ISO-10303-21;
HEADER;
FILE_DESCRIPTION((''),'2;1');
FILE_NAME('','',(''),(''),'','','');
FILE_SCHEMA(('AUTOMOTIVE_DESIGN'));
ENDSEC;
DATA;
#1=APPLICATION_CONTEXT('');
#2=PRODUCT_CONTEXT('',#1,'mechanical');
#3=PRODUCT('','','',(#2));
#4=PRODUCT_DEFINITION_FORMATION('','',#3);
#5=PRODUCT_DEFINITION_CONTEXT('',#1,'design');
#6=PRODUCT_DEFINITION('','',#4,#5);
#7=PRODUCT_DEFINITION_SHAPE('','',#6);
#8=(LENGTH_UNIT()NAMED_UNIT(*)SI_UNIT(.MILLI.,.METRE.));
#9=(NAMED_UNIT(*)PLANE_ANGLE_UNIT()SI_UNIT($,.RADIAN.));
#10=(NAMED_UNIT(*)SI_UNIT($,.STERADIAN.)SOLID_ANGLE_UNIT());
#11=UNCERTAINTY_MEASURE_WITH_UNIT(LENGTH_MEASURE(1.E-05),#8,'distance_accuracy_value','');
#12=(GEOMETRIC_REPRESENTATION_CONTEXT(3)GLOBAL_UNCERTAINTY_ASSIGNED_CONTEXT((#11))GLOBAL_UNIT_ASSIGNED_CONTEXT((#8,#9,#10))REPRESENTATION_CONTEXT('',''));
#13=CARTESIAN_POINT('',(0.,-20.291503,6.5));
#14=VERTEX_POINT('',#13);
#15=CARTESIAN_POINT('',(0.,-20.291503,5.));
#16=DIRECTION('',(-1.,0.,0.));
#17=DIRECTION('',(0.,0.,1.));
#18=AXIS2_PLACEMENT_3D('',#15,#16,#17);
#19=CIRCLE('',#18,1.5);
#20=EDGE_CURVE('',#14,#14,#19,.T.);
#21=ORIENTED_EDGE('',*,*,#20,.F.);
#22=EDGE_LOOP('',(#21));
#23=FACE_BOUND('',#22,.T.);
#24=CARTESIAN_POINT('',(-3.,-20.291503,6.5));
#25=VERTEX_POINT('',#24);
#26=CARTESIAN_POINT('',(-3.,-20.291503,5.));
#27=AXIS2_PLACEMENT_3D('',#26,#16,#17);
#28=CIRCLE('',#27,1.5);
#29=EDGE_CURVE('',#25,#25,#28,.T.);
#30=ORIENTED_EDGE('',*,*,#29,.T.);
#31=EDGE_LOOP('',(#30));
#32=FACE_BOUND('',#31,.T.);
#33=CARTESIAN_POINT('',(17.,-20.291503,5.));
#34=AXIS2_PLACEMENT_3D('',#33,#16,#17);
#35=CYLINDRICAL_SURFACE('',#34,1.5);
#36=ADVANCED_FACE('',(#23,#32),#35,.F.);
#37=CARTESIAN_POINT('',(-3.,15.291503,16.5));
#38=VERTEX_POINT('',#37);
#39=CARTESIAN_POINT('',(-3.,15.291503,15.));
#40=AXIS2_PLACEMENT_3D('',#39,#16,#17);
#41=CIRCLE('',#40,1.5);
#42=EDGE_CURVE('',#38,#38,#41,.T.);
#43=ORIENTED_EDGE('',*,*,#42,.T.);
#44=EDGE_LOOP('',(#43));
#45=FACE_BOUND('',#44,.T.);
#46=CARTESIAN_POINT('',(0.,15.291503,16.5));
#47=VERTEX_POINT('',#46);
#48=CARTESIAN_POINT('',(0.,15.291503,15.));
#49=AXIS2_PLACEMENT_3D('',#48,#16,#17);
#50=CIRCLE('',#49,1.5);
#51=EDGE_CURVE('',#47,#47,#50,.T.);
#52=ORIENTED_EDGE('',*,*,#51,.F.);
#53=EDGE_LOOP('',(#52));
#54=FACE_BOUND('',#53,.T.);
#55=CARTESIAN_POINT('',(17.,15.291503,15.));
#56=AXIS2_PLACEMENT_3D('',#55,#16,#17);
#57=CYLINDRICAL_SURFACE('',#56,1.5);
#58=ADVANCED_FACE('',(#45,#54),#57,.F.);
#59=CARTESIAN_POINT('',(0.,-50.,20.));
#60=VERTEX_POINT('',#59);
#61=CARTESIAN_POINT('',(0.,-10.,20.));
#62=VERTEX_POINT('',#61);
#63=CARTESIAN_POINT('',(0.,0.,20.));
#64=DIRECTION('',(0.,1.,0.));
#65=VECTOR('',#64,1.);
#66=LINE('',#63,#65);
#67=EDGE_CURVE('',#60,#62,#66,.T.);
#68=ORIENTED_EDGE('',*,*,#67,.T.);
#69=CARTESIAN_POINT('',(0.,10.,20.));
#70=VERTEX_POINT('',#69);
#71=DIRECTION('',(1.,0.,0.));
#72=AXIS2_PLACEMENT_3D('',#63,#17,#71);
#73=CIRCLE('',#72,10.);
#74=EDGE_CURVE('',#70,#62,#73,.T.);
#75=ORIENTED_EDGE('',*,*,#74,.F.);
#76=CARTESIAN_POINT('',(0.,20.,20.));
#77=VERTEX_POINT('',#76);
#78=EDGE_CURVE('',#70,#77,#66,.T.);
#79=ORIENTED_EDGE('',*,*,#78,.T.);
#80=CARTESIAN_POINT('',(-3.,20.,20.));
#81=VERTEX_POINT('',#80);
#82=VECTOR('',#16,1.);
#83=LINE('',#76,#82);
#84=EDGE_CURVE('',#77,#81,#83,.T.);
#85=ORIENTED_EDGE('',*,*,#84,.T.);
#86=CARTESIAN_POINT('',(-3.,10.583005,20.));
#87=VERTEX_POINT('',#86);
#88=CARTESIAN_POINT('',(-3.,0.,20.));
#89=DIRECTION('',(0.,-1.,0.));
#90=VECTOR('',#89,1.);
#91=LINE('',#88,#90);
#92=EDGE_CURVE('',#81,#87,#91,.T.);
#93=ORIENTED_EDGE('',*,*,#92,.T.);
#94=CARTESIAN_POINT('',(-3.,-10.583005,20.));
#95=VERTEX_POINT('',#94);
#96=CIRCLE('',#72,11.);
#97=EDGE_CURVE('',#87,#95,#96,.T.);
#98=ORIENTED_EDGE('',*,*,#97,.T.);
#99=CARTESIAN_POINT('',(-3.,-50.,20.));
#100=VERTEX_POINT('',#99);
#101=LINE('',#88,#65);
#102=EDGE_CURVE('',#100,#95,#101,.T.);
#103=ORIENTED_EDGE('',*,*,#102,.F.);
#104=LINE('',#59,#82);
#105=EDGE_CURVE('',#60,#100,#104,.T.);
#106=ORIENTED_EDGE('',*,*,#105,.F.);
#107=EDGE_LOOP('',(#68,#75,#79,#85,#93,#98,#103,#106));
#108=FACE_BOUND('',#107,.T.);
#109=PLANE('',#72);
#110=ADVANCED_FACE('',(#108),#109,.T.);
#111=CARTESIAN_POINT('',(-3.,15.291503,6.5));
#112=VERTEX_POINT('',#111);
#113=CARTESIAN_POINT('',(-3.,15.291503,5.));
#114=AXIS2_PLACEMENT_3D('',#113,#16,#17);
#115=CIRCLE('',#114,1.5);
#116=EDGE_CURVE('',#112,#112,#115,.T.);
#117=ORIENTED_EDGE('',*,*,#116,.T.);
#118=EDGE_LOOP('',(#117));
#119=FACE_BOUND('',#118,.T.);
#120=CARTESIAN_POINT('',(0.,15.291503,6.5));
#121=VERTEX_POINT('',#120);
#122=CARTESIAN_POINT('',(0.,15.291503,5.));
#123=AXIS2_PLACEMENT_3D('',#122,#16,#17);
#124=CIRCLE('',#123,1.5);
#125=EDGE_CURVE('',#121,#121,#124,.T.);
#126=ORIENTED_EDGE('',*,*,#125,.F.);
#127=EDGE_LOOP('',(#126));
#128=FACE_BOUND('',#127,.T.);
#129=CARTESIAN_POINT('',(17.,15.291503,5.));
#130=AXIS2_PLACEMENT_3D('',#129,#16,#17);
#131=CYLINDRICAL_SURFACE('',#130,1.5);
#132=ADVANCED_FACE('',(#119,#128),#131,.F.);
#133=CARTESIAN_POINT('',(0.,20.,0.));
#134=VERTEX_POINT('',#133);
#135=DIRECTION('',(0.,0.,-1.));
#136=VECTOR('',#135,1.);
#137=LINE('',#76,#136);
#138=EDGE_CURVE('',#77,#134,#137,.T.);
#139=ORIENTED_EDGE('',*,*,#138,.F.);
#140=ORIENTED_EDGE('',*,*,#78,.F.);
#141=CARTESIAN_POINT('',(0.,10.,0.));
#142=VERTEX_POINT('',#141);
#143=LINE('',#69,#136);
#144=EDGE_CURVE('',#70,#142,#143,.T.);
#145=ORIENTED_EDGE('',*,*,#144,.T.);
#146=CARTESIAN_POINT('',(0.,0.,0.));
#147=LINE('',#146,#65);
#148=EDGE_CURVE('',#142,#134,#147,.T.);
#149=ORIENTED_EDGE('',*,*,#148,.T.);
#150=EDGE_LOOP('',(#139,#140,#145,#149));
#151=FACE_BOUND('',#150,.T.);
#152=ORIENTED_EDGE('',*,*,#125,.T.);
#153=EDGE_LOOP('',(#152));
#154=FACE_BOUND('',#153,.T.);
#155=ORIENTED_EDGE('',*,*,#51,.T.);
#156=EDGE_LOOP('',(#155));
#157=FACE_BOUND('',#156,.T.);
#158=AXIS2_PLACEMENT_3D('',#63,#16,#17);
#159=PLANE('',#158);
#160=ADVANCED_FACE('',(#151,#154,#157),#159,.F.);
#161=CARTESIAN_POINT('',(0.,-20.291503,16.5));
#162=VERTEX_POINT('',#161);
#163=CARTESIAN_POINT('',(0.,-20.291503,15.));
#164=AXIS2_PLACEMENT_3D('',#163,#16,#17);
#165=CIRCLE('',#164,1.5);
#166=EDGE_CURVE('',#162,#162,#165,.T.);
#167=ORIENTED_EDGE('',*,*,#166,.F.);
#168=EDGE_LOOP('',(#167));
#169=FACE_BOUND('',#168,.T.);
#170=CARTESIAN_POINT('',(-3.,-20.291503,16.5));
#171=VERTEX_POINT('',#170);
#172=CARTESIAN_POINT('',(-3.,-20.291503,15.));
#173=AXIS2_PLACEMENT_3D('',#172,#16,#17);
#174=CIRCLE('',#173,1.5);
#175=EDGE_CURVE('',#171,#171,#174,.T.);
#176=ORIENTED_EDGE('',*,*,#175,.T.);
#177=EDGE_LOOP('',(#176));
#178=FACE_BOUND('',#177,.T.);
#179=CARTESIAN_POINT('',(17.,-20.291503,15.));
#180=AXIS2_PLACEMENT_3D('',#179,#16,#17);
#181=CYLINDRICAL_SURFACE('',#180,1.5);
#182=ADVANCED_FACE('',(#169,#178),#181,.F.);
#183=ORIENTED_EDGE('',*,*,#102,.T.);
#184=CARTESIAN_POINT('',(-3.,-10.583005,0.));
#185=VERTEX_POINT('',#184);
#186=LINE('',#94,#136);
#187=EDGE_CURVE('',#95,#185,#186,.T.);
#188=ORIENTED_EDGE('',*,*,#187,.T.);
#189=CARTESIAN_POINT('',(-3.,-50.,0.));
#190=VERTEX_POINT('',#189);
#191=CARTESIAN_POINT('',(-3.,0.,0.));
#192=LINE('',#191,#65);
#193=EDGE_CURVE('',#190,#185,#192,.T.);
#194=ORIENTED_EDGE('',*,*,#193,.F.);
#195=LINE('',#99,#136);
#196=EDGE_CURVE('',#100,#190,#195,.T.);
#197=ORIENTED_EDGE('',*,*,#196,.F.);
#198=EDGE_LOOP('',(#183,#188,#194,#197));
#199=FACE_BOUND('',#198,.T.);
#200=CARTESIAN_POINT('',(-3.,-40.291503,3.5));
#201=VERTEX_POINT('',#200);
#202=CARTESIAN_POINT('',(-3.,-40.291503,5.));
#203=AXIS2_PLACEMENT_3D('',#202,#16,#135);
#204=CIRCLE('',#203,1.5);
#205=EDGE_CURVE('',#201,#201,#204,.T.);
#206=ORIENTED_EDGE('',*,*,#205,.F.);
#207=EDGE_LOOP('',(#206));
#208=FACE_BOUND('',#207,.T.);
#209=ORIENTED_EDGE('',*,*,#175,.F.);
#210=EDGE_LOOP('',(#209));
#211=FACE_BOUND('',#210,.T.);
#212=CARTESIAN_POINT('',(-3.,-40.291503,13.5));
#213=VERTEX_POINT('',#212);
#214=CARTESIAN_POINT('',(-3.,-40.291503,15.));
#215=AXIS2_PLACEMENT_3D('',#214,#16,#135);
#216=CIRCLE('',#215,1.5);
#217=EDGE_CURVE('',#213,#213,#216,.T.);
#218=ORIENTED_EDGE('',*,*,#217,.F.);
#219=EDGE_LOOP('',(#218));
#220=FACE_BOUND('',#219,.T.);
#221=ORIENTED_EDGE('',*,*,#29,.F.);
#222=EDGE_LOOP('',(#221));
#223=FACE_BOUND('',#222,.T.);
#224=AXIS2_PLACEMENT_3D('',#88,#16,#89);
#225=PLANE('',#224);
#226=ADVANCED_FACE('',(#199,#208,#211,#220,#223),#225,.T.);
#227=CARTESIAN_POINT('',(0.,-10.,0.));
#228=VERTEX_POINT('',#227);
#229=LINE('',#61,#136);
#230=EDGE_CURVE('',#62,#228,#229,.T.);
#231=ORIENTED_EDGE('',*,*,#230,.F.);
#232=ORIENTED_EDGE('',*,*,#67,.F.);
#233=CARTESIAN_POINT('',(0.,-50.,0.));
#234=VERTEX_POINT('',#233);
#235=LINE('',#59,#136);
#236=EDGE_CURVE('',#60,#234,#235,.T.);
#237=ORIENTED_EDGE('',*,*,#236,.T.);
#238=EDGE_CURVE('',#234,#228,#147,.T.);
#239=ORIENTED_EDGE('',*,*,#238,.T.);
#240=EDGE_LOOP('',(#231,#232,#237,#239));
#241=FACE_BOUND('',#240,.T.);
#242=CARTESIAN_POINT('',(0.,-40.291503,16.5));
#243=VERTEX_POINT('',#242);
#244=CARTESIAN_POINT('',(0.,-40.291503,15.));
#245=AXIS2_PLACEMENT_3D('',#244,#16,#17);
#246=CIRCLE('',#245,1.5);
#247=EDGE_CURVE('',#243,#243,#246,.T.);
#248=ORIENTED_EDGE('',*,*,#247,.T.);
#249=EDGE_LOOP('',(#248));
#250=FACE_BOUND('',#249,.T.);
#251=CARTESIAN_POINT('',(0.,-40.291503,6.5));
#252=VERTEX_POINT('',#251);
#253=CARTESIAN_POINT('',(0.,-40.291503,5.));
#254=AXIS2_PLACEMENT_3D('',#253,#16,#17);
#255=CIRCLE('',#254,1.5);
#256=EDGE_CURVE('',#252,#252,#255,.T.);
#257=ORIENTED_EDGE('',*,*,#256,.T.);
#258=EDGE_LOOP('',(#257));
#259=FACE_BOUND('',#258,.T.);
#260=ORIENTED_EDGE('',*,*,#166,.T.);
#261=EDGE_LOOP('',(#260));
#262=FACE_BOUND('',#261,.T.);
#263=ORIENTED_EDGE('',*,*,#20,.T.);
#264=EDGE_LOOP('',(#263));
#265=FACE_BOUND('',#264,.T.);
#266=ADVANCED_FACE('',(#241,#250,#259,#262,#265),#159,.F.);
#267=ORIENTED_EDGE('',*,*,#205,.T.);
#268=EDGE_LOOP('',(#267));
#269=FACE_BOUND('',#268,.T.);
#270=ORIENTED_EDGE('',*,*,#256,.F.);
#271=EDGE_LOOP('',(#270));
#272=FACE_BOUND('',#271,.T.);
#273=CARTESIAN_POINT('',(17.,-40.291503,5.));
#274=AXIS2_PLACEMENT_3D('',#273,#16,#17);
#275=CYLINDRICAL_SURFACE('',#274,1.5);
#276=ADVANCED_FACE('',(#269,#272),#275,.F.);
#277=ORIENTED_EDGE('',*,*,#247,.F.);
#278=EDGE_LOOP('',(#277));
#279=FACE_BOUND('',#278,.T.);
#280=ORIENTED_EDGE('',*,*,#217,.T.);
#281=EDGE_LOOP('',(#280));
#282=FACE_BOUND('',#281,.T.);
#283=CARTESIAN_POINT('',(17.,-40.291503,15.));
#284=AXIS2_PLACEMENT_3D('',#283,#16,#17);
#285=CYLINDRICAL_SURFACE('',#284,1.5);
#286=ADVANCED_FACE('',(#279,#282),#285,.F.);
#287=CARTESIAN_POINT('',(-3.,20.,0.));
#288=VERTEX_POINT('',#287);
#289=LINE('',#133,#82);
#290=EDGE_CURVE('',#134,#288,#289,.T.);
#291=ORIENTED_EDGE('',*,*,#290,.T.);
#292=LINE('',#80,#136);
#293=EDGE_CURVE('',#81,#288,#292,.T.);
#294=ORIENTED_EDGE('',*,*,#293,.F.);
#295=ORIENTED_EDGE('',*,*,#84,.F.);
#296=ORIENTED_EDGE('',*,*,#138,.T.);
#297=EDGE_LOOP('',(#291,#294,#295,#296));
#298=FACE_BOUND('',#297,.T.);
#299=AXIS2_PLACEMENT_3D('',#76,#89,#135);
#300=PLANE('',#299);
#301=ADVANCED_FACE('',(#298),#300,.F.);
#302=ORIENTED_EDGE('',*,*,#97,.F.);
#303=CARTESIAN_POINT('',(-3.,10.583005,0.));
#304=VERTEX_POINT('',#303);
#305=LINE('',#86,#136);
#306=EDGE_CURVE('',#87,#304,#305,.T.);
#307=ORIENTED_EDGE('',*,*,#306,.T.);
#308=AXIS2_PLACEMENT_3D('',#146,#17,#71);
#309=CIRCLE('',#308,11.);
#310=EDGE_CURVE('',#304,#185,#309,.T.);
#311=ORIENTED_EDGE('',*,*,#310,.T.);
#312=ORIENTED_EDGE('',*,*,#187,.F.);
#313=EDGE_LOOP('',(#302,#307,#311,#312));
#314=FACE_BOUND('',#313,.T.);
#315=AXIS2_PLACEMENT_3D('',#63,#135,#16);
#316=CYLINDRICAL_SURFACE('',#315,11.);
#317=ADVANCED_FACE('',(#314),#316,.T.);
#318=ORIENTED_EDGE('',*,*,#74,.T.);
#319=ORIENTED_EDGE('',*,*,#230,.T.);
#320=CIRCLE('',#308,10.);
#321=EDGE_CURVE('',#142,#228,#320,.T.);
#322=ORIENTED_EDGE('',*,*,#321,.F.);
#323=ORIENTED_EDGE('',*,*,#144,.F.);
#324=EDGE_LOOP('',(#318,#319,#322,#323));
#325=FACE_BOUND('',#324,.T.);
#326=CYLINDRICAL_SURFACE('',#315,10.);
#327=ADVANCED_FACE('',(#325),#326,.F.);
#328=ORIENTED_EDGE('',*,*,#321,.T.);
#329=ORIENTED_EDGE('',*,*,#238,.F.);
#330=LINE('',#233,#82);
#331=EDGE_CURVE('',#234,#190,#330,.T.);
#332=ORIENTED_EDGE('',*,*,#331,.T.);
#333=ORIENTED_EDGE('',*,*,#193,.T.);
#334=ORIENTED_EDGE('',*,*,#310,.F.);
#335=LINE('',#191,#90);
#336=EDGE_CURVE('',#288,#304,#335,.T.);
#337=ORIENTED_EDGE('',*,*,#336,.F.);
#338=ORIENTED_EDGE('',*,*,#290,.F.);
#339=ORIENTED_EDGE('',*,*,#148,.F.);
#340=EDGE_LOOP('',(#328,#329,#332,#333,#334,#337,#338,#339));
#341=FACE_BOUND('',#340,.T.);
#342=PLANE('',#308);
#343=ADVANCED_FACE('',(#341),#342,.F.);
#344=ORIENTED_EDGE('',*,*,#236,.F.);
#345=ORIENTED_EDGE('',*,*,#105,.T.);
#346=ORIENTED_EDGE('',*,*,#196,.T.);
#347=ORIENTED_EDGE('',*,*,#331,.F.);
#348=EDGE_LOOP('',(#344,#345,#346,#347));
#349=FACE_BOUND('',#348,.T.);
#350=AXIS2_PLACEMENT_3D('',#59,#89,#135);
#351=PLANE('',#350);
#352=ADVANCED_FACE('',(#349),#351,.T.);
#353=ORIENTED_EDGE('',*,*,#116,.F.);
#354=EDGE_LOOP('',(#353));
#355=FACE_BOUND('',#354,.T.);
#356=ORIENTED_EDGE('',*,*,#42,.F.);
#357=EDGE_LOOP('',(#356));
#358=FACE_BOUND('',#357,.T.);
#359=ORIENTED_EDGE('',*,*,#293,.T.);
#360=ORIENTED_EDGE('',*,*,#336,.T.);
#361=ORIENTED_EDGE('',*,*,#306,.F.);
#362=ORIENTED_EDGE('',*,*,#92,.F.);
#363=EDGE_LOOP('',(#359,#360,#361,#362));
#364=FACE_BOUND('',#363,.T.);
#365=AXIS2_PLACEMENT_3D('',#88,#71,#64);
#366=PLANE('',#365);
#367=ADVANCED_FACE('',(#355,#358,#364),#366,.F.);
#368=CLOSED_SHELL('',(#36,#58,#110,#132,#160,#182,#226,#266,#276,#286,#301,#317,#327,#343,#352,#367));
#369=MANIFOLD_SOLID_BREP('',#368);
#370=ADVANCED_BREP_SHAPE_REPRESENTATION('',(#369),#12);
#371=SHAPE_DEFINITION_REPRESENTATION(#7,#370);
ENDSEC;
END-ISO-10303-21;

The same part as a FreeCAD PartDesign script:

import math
import FreeCAD as App
import Part
import Sketcher
Q = App.Units.Quantity

doc = App.newDocument("Part")
body = doc.addObject("PartDesign::Body", "Body")

sketch1 = body.newObject("Sketcher::SketchObject", "Sketch")
sketch1.AttachmentSupport = (doc.getObject("XY_Plane"), [""])
sketch1.MapMode = "FlatFace"
sketch1.addGeometry(Part.LineSegment(App.Vector(-3, 20, 0), App.Vector(-3, 10.583005, 0)), False)
sketch1.addGeometry(Part.ArcOfCircle(Part.Circle(App.Vector(0, 0, 0), App.Vector(0, 0, 1), 11), math.radians(105.82662), math.radians(254.17338)), False)
sketch1.addGeometry(Part.LineSegment(App.Vector(-3, -10.583005, 0), App.Vector(-3, -50, 0)), False)
sketch1.addGeometry(Part.LineSegment(App.Vector(-3, -50, 0), App.Vector(0, -50, 0)), False)
sketch1.addGeometry(Part.LineSegment(App.Vector(0, -50, 0), App.Vector(0, -10, 0)), False)
sketch1.addGeometry(Part.ArcOfCircle(Part.Circle(App.Vector(0, 0, 0), App.Vector(0, 0, 1), 10), math.radians(90), math.radians(270)), False)
sketch1.addGeometry(Part.LineSegment(App.Vector(0, 10, 0), App.Vector(0, 20, 0)), False)
sketch1.addGeometry(Part.LineSegment(App.Vector(0, 20, 0), App.Vector(-3, 20, 0)), False)
sketch1.addConstraint(Sketcher.Constraint("Coincident", 0, 2, 1, 1))
sketch1.addConstraint(Sketcher.Constraint("Coincident", 1, 2, 2, 1))
sketch1.addConstraint(Sketcher.Constraint("Coincident", 2, 2, 3, 1))
sketch1.addConstraint(Sketcher.Constraint("Coincident", 3, 2, 4, 1))
sketch1.addConstraint(Sketcher.Constraint("Coincident", 4, 2, 5, 2))
sketch1.addConstraint(Sketcher.Constraint("Coincident", 5, 1, 6, 1))
sketch1.addConstraint(Sketcher.Constraint("Coincident", 6, 2, 7, 1))
sketch1.addConstraint(Sketcher.Constraint("Coincident", 7, 2, 0, 1))
sketch1.addConstraint(Sketcher.Constraint("Vertical", 0))
sketch1.addConstraint(Sketcher.Constraint("Vertical", 2))
sketch1.addConstraint(Sketcher.Constraint("Horizontal", 3))
sketch1.addConstraint(Sketcher.Constraint("Vertical", 4))
sketch1.addConstraint(Sketcher.Constraint("Vertical", 6))
sketch1.addConstraint(Sketcher.Constraint("Horizontal", 7))
sketch1.addConstraint(Sketcher.Constraint("Coincident", 1, 3, -1, 1))
sketch1.addConstraint(Sketcher.Constraint("Coincident", 5, 3, -1, 1))
sketch1.addConstraint(Sketcher.Constraint("PointOnObject", 3, 2, -2))
sketch1.addConstraint(Sketcher.Constraint("PointOnObject", 5, 1, -2))
sketch1.addConstraint(Sketcher.Constraint("Vertical", 0, 2, 1, 2))
sketch1.addConstraint(Sketcher.Constraint("Radius", 1, Q("11 mm")))
sketch1.addConstraint(Sketcher.Constraint("Radius", 5, Q("10 mm")))
sketch1.addConstraint(Sketcher.Constraint("DistanceX", 3, 1, 3, 2, Q("3 mm")))
sketch1.addConstraint(Sketcher.Constraint("DistanceY", 4, 1, 4, 2, Q("40 mm")))
sketch1.addConstraint(Sketcher.Constraint("DistanceY", 6, 1, 6, 2, Q("10 mm")))
pad1 = body.newObject("PartDesign::Pad", "Pad")
pad1.Profile = sketch1
pad1.Length = 20

sketch2 = body.newObject("Sketcher::SketchObject", "Sketch001")
sketch2.AttachmentSupport = (doc.getObject("YZ_Plane"), [""])
sketch2.MapMode = "FlatFace"
sketch2.AttachmentOffset = App.Placement(App.Vector(0, 0, -3), App.Rotation())
sketch2.addGeometry(Part.Circle(App.Vector(15.291503, 5, 0), App.Vector(0, 0, 1), 1.5), False)
sketch2.addGeometry(Part.Circle(App.Vector(15.291503, 15, 0), App.Vector(0, 0, 1), 1.5), False)
sketch2.addGeometry(Part.Circle(App.Vector(-20.291503, 5, 0), App.Vector(0, 0, 1), 1.5), False)
sketch2.addGeometry(Part.Circle(App.Vector(-20.291503, 15, 0), App.Vector(0, 0, 1), 1.5), False)
sketch2.addGeometry(Part.Circle(App.Vector(-40.291503, 15, 0), App.Vector(0, 0, 1), 1.5), False)
sketch2.addGeometry(Part.Circle(App.Vector(-40.291503, 5, 0), App.Vector(0, 0, 1), 1.5), False)
sketch2.addConstraint(Sketcher.Constraint("Equal", 0, 1))
sketch2.addConstraint(Sketcher.Constraint("Equal", 1, 2))
sketch2.addConstraint(Sketcher.Constraint("Equal", 2, 3))
sketch2.addConstraint(Sketcher.Constraint("Equal", 3, 4))
sketch2.addConstraint(Sketcher.Constraint("Equal", 4, 5))
sketch2.addConstraint(Sketcher.Constraint("Horizontal", 0, 3, 2, 3))
sketch2.addConstraint(Sketcher.Constraint("Horizontal", 1, 3, 3, 3))
sketch2.addConstraint(Sketcher.Constraint("Horizontal", 3, 3, 4, 3))
sketch2.addConstraint(Sketcher.Constraint("Horizontal", 2, 3, 5, 3))
sketch2.addConstraint(Sketcher.Constraint("Vertical", 0, 3, 1, 3))
sketch2.addConstraint(Sketcher.Constraint("Vertical", 2, 3, 3, 3))
sketch2.addConstraint(Sketcher.Constraint("Vertical", 4, 3, 5, 3))
sketch2.addConstraint(Sketcher.Constraint("Diameter", 0, Q("3 mm")))
sketch2.addConstraint(Sketcher.Constraint("DistanceY", -1, 1, 0, 3, Q("5 mm")))
sketch2.addConstraint(Sketcher.Constraint("DistanceY", -1, 1, 1, 3, Q("15 mm")))
sketch2.addConstraint(Sketcher.Constraint("DistanceX", 4, 3, 3, 3, Q("20 mm")))
sketch2.addConstraint(Sketcher.Constraint("DistanceX", -1, 1, 0, 3, Q("15.291503 mm")))
sketch2.addConstraint(Sketcher.Constraint("DistanceX", 2, 3, -1, 1, Q("20.291503 mm")))
pocket1 = body.newObject("PartDesign::Pocket", "Pocket")
pocket1.Profile = sketch2
pocket1.Length = 20
pocket1.Reversed = True

doc.recompute()
